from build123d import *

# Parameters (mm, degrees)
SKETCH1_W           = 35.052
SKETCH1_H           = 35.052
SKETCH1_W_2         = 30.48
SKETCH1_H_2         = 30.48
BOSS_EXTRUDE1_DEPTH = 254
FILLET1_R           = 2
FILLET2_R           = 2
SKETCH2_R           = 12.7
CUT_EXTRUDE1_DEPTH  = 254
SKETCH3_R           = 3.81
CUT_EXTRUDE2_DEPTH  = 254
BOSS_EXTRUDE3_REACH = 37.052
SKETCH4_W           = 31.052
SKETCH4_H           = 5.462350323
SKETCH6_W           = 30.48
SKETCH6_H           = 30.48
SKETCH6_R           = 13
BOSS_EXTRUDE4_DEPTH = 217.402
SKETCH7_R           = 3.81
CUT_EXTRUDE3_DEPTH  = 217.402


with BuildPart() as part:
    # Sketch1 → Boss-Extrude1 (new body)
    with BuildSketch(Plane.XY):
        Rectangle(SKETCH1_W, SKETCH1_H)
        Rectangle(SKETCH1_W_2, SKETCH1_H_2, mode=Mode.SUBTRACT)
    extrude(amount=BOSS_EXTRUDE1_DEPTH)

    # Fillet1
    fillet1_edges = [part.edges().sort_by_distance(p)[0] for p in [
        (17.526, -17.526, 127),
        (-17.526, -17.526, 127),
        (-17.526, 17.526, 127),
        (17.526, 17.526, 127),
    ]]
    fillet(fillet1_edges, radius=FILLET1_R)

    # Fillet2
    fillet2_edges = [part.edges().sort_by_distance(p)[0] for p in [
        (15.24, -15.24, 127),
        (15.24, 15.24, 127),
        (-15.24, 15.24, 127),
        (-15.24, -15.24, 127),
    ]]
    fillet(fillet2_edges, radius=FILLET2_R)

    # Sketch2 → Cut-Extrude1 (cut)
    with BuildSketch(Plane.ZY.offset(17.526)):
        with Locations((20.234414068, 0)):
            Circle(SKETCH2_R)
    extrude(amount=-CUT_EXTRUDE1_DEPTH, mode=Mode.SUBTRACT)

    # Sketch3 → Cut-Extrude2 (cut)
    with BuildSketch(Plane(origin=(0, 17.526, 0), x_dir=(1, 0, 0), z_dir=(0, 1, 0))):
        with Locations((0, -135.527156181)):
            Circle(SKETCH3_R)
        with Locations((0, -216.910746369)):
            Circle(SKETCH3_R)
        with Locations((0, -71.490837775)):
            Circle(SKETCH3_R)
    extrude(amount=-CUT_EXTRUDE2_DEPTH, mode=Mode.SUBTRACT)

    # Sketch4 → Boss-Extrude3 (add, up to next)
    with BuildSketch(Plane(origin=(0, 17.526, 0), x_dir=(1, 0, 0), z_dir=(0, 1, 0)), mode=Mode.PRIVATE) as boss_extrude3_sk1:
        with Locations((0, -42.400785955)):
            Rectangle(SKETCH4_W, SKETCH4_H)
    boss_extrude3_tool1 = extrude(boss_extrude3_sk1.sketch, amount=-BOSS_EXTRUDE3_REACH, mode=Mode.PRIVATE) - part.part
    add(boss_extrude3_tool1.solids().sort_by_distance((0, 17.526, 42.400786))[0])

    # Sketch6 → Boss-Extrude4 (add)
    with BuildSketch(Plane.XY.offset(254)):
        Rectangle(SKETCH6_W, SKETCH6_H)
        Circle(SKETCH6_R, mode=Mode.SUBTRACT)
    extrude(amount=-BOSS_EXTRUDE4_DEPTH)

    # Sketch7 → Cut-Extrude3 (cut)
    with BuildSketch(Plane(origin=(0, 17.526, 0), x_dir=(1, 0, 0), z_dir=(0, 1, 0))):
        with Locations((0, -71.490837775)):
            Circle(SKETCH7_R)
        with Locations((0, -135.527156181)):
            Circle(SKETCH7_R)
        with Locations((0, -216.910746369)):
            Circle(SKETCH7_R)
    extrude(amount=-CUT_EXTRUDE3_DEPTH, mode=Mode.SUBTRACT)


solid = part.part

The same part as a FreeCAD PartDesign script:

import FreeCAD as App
import Part
import Sketcher
from FreeCAD import Vector
Q = App.Units.Quantity


def edges_at(feature, points):
    """Names of the edges that pass closest to the given points."""
    edges = feature.Shape.Edges
    near = lambda p: min(range(len(edges)), key=lambda i: edges[i].distToShape(Part.Vertex(*p))[0])
    return sorted({f"Edge{near(p) + 1}" for p in points})

doc = App.newDocument("Part")
body = doc.addObject("PartDesign::Body", "Body")

# Sketch on XY plane
sketch1 = doc.addObject("Sketcher::SketchObject", "Sketch")
body.addObject(sketch1)
sketch1.AttachmentSupport = (doc.XY_Plane, [""])
sketch1.MapMode = "FlatFace"
sketch1.addGeometry([
    Part.LineSegment(Vector(-18, 18, 0), Vector(-18, -18, 0)),  # 0
    Part.LineSegment(Vector(-18, -18, 0), Vector(18, -18, 0)),  # 1
    Part.LineSegment(Vector(18, -18, 0), Vector(18, 18, 0)),  # 2
    Part.LineSegment(Vector(18, 18, 0), Vector(-18, 18, 0)),  # 3
    Part.LineSegment(Vector(15, -15, 0), Vector(-15, -15, 0)),  # 4
    Part.LineSegment(Vector(-15, -15, 0), Vector(-15, 15, 0)),  # 5
    Part.LineSegment(Vector(-15, 15, 0), Vector(15, 15, 0)),  # 6
    Part.LineSegment(Vector(15, 15, 0), Vector(15, -15, 0)),  # 7
], False)
sketch1.addConstraint([
    Sketcher.Constraint("Coincident", 0, 2, 1, 1),
    Sketcher.Constraint("Coincident", 1, 2, 2, 1),
    Sketcher.Constraint("Coincident", 2, 2, 3, 1),
    Sketcher.Constraint("Coincident", 3, 2, 0, 1),
    Sketcher.Constraint("Coincident", 4, 2, 5, 1),
    Sketcher.Constraint("Coincident", 5, 2, 6, 1),
    Sketcher.Constraint("Coincident", 6, 2, 7, 1),
    Sketcher.Constraint("Coincident", 7, 2, 4, 1),
    Sketcher.Constraint("Vertical", 0),
    Sketcher.Constraint("Horizontal", 1),
    Sketcher.Constraint("Vertical", 2),
    Sketcher.Constraint("Horizontal", 3),
    Sketcher.Constraint("Horizontal", 4),
    Sketcher.Constraint("Vertical", 5),
    Sketcher.Constraint("Horizontal", 6),
    Sketcher.Constraint("Vertical", 7),
    Sketcher.Constraint("Symmetric", 0, 2, 2, 2, -1, 1),
    Sketcher.Constraint("Symmetric", 4, 2, 6, 2, -1, 1),
    Sketcher.Constraint("Equal", 3, 0),
    Sketcher.Constraint("Equal", 6, 5),
    Sketcher.Constraint("DistanceX", 4, 2, 4, 1, Q("1.2 in")),
    Sketcher.Constraint("DistanceX", 1, 1, 1, 2, Q("1.38 in")),
])
pad1 = doc.addObject("PartDesign::Pad", "Pad")
body.addObject(pad1)
pad1.Profile = sketch1
pad1.Length = Q("10 in")
doc.recompute()

fillet = doc.addObject("PartDesign::Fillet", "Fillet")
body.addObject(fillet)
fillet.Base = (pad1, edges_at(pad1, [
    (17.526, -17.526, 127),
    (-17.526, -17.526, 127),
    (-17.526, 17.526, 127),
    (17.526, 17.526, 127),
]))
fillet.Radius = 2
doc.recompute()

fillet2 = doc.addObject("PartDesign::Fillet", "Fillet001")
body.addObject(fillet2)
fillet2.Base = (fillet, edges_at(fillet, [
    (15.24, -15.24, 127),
    (15.24, 15.24, 127),
    (-15.24, 15.24, 127),
    (-15.24, -15.24, 127),
]))
fillet2.Radius = 2

# Sketch on YZ plane
sketch2 = doc.addObject("Sketcher::SketchObject", "Sketch001")
body.addObject(sketch2)
sketch2.AttachmentSupport = (doc.YZ_Plane, [""])
sketch2.MapMode = "FlatFace"
sketch2.AttachmentOffset = App.Placement(Vector(0, 0, -0.69 * 25.4), App.Rotation())
sketch2.addGeometry(Part.Circle(Vector(0, 20, 0), Vector(0, 0, 1), 13), False)
sketch2.addConstraint([
    Sketcher.Constraint("PointOnObject", 0, 3, -2),
    Sketcher.Constraint("Diameter", 0, Q("1 in")),
    Sketcher.Constraint("DistanceY", -1, 1, 0, 3, Q("20.234414 mm")),
])
pocket1 = doc.addObject("PartDesign::Pocket", "Pocket")
body.addObject(pocket1)
pocket1.Profile = sketch2
pocket1.Length = Q("10 in")
pocket1.Reversed = True

# Sketch on XZ plane
sketch3 = doc.addObject("Sketcher::SketchObject", "Sketch002")
body.addObject(sketch3)
sketch3.AttachmentSupport = (doc.XZ_Plane, [""])
sketch3.MapMode = "FlatFace"
sketch3.AttachmentOffset = App.Placement(Vector(0, 0, -0.69 * 25.4), App.Rotation())
sketch3.addGeometry([
    Part.Circle(Vector(0, 135.5, 0), Vector(0, 0, 1), 3.8),
    Part.Circle(Vector(0, 216.9, 0), Vector(0, 0, 1), 3.8),
    Part.Circle(Vector(0, 71.5, 0), Vector(0, 0, 1), 3.8),
], False)
sketch3.addConstraint([
    Sketcher.Constraint("Equal", 0, 1),
    Sketcher.Constraint("Equal", 1, 2),
    Sketcher.Constraint("PointOnObject", 0, 3, -2),
    Sketcher.Constraint("PointOnObject", 1, 3, -2),
    Sketcher.Constraint("PointOnObject", 2, 3, -2),
    Sketcher.Constraint("Diameter", 0, Q("0.3 in")),
    Sketcher.Constraint("DistanceY", -1, 1, 2, 3, Q("2.8145999 in")),
    Sketcher.Constraint("DistanceY", 0, 3, 1, 3, Q("81.38359 mm")),
    Sketcher.Constraint("DistanceY", 2, 3, 0, 3, Q("64.036318 mm")),
])
pocket2 = doc.addObject("PartDesign::Pocket", "Pocket001")
body.addObject(pocket2)
pocket2.Profile = sketch3
pocket2.Length = Q("10 in")
pocket2.Reversed = True

# Sketch on XZ plane
sketch4 = doc.addObject("Sketcher::SketchObject", "Sketch003")
body.addObject(sketch4)
sketch4.AttachmentSupport = (doc.XZ_Plane, [""])
sketch4.MapMode = "FlatFace"
sketch4.AttachmentOffset = App.Placement(Vector(0, 0, -0.69 * 25.4), App.Rotation())
sketch4.addGeometry([
    Part.LineSegment(Vector(-16, 40, 0), Vector(-16, 45, 0)),
    Part.LineSegment(Vector(-16, 45, 0), Vector(16, 45, 0)),
    Part.LineSegment(Vector(16, 45, 0), Vector(16, 40, 0)),
    Part.LineSegment(Vector(16, 40, 0), Vector(-16, 40, 0)),
], False)
sketch4.addConstraint([
    Sketcher.Constraint("Coincident", 0, 2, 1, 1),
    Sketcher.Constraint("Coincident", 1, 2, 2, 1),
    Sketcher.Constraint("Coincident", 2, 2, 3, 1),
    Sketcher.Constraint("Coincident", 3, 2, 0, 1),
    Sketcher.Constraint("Vertical", 0),
    Sketcher.Constraint("Horizontal", 1),
    Sketcher.Constraint("Vertical", 2),
    Sketcher.Constraint("Horizontal", 3),
    Sketcher.Constraint("DistanceX", 1, 1, 1, 2, Q("31.052 mm")),
    Sketcher.Constraint("DistanceY", 0, 1, 0, 2, Q("5.46235 mm")),
    Sketcher.Constraint("DistanceX", 0, 2, -1, 1, Q("15.526 mm")),
    Sketcher.Constraint("DistanceY", -1, 1, 0, 2, Q("45.131961 mm")),
])
pad2 = doc.addObject("PartDesign::Pad", "Pad001")
body.addObject(pad2)
pad2.Profile = sketch4
pad2.Length = Q("1.29 in")

# Sketch on XY plane
sketch5 = doc.addObject("Sketcher::SketchObject", "Sketch004")
body.addObject(sketch5)
sketch5.AttachmentSupport = (doc.XY_Plane, [""])
sketch5.MapMode = "FlatFace"
sketch5.AttachmentOffset = App.Placement(Vector(0, 0, 10 * 25.4), App.Rotation())
sketch5.addGeometry([
    Part.LineSegment(Vector(-15, 15, 0), Vector(-15, -15, 0)),  # 0
    Part.LineSegment(Vector(-15, -15, 0), Vector(15, -15, 0)),  # 1
    Part.LineSegment(Vector(15, -15, 0), Vector(15, 15, 0)),  # 2
    Part.LineSegment(Vector(15, 15, 0), Vector(-15, 15, 0)),  # 3
    Part.Circle(Vector(0, 0, 0), Vector(0, 0, 1), 13),  # 4
], False)
sketch5.addConstraint([
    Sketcher.Constraint("Coincident", 0, 2, 1, 1),
    Sketcher.Constraint("Coincident", 1, 2, 2, 1),
    Sketcher.Constraint("Coincident", 2, 2, 3, 1),
    Sketcher.Constraint("Coincident", 3, 2, 0, 1),
    Sketcher.Constraint("Vertical", 0),
    Sketcher.Constraint("Horizontal", 1),
    Sketcher.Constraint("Vertical", 2),
    Sketcher.Constraint("Horizontal", 3),
    Sketcher.Constraint("Coincident", 4, 3, -1, 1),
    Sketcher.Constraint("Symmetric", 0, 2, 2, 2, -1, 1),
    Sketcher.Constraint("Equal", 3, 0),
    Sketcher.Constraint("DistanceX", 1, 1, 1, 2, Q("1.2 in")),
    Sketcher.Constraint("Diameter", 4, Q("26 mm")),
])
pad3 = doc.addObject("PartDesign::Pad", "Pad002")
body.addObject(pad3)
pad3.Profile = sketch5
pad3.Length = 217.402
pad3.Reversed = True

# Sketch on XZ plane
sketch6 = doc.addObject("Sketcher::SketchObject", "Sketch005")
body.addObject(sketch6)
sketch6.AttachmentSupport = (doc.XZ_Plane, [""])
sketch6.MapMode = "FlatFace"
sketch6.AttachmentOffset = App.Placement(Vector(0, 0, -0.69 * 25.4), App.Rotation())
sketch6.addGeometry([
    Part.Circle(Vector(0, 71.5, 0), Vector(0, 0, 1), 3.8),
    Part.Circle(Vector(0, 135.5, 0), Vector(0, 0, 1), 3.8),
    Part.Circle(Vector(0, 216.9, 0), Vector(0, 0, 1), 3.8),
], False)
sketch6.addConstraint([
    Sketcher.Constraint("Equal", 0, 1),
    Sketcher.Constraint("Equal", 1, 2),
    Sketcher.Constraint("PointOnObject", 0, 3, -2),
    Sketcher.Constraint("PointOnObject", 1, 3, -2),
    Sketcher.Constraint("PointOnObject", 2, 3, -2),
    Sketcher.Constraint("Diameter", 0, Q("0.3 in")),
    Sketcher.Constraint("DistanceY", -1, 1, 0, 3, Q("2.8145999 in")),
    Sketcher.Constraint("DistanceY", 0, 3, 1, 3, Q("64.036318 mm")),
    Sketcher.Constraint("DistanceY", 1, 3, 2, 3, Q("81.38359 mm")),
])
pocket3 = doc.addObject("PartDesign::Pocket", "Pocket002")
body.addObject(pocket3)
pocket3.Profile = sketch6
pocket3.Length = 217.402
pocket3.Reversed = True

doc.recompute()
